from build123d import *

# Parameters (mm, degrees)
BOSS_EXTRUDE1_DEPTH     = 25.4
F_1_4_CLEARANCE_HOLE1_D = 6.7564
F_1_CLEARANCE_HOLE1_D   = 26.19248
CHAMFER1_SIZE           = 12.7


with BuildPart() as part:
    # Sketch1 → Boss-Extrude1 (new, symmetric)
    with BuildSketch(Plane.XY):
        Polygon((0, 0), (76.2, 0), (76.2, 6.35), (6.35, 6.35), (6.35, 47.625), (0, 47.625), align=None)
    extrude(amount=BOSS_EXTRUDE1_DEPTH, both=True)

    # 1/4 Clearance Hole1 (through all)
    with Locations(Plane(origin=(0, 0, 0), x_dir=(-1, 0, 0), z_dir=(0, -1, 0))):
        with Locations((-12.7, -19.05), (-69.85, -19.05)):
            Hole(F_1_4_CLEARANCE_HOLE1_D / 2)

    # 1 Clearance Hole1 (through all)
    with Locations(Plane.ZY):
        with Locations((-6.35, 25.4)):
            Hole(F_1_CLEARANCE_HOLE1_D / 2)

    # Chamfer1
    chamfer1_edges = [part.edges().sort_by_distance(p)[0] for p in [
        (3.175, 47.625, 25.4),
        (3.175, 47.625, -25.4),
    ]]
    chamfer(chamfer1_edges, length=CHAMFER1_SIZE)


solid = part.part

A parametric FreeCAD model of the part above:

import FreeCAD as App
import Part
import Sketcher
Q = App.Units.Quantity


def edges_at(feature, points):
    """Names of the edges that pass closest to the given points."""
    edges = feature.Shape.Edges
    near = lambda p: min(range(len(edges)), key=lambda i: edges[i].distToShape(Part.Vertex(*p))[0])
    return sorted({f"Edge{near(p) + 1}" for p in points})


def add_polygon(sketch, points):
    """Adds a closed chain of lines whose ends are joined by coincident constraints."""
    first, n = sketch.GeometryCount, len(points)
    for a, b in zip(points, points[1:] + points[:1]):
        sketch.addGeometry(Part.LineSegment(App.Vector(*a, 0), App.Vector(*b, 0)), False)
    for i in range(n):
        sketch.addConstraint(Sketcher.Constraint("Coincident", first + i, 2, first + (i + 1) % n, 1))

doc = App.newDocument("Part")
body = doc.addObject("PartDesign::Body", "Body")

# Sketch on XY plane
sketch1 = doc.addObject("Sketcher::SketchObject", "Sketch")
body.addObject(sketch1)
sketch1.AttachmentSupport = (doc.XY_Plane, [""])
sketch1.MapMode = "FlatFace"
add_polygon(sketch1, [(0, 0), (76.2, 0), (76.2, 6.35), (6.35, 6.35), (6.35, 47.625), (0, 47.625)])  # lines 0-5
sketch1.addConstraint([
    Sketcher.Constraint("Horizontal", 0),
    Sketcher.Constraint("Vertical", 1),
    Sketcher.Constraint("Horizontal", 2),
    Sketcher.Constraint("Vertical", 3),
    Sketcher.Constraint("Horizontal", 4),
    Sketcher.Constraint("Vertical", 5),
    Sketcher.Constraint("Coincident", 5, 2, -1, 1),
    Sketcher.Constraint("Equal", 4, 1),
    Sketcher.Constraint("DistanceX", 0, 1, 0, 2, Q("3 in")),
    Sketcher.Constraint("DistanceX", 2, 2, 2, 1, Q("2.75 in")),
    Sketcher.Constraint("DistanceY", 3, 1, 3, 2, Q("1.625 in")),
])
pad1 = doc.addObject("PartDesign::Pad", "Pad")
body.addObject(pad1)
pad1.Profile = sketch1
pad1.Length = Q("2 in")
pad1.Midplane = True

# Sketch on XZ plane
sketch2 = doc.addObject("Sketcher::SketchObject", "Sketch001")
body.addObject(sketch2)
sketch2.AttachmentSupport = (doc.XZ_Plane, [""])
sketch2.MapMode = "FlatFace"
sketch2.addGeometry([
    Part.Circle(App.Vector(12.7, 19.05, 0), App.Vector(0, 0, 1), 3.3782),
    Part.Circle(App.Vector(69.85, 19.05, 0), App.Vector(0, 0, 1), 3.3782),
], False)
sketch2.addConstraint([
    Sketcher.Constraint("Equal", 0, 1),
    Sketcher.Constraint("Horizontal", 0, 3, 1, 3),
    Sketcher.Constraint("Diameter", 0, Q("0.266 in")),
    Sketcher.Constraint("DistanceX", -1, 1, 0, 3, Q("0.5 in")),
    Sketcher.Constraint("DistanceY", -1, 1, 0, 3, Q("0.75 in")),
    Sketcher.Constraint("DistanceX", -1, 1, 1, 3, Q("2.75 in")),
])
doc.recompute()
hole = doc.addObject("PartDesign::Hole", "Hole")
body.addObject(hole)
hole.Profile = sketch2
hole.ThreadType = "None"
hole.Diameter = Q("0.266 in")
hole.DepthType = "ThroughAll"

# Sketch on YZ plane
sketch3 = doc.addObject("Sketcher::SketchObject", "Sketch002")
body.addObject(sketch3)
sketch3.AttachmentSupport = (doc.YZ_Plane, [""])
sketch3.MapMode = "FlatFace"
sketch3.addGeometry(Part.Circle(App.Vector(25.4, -6.35, 0), App.Vector(0, 0, 1), 13.09624), False)
sketch3.addConstraint([
    Sketcher.Constraint("DistanceX", -1, 1, 0, 3, Q("1 in")),
    Sketcher.Constraint("Diameter", 0, Q("1.0312 in")),
    Sketcher.Constraint("DistanceY", 0, 3, -1, 1, Q("0.25 in")),
])
doc.recompute()
hole2 = doc.addObject("PartDesign::Hole", "Hole001")
body.addObject(hole2)
hole2.Profile = sketch3
hole2.ThreadType = "None"
hole2.Diameter = Q("1.0312 in")
hole2.DepthType = "ThroughAll"
hole2.Reversed = True
doc.recompute()

chamfer = doc.addObject("PartDesign::Chamfer", "Chamfer")
body.addObject(chamfer)
chamfer.Base = (hole2, edges_at(hole2, [(3.175, 47.625, 25.4), (3.175, 47.625, -25.4)]))
chamfer.Size = Q("0.5 in")

doc.recompute()
